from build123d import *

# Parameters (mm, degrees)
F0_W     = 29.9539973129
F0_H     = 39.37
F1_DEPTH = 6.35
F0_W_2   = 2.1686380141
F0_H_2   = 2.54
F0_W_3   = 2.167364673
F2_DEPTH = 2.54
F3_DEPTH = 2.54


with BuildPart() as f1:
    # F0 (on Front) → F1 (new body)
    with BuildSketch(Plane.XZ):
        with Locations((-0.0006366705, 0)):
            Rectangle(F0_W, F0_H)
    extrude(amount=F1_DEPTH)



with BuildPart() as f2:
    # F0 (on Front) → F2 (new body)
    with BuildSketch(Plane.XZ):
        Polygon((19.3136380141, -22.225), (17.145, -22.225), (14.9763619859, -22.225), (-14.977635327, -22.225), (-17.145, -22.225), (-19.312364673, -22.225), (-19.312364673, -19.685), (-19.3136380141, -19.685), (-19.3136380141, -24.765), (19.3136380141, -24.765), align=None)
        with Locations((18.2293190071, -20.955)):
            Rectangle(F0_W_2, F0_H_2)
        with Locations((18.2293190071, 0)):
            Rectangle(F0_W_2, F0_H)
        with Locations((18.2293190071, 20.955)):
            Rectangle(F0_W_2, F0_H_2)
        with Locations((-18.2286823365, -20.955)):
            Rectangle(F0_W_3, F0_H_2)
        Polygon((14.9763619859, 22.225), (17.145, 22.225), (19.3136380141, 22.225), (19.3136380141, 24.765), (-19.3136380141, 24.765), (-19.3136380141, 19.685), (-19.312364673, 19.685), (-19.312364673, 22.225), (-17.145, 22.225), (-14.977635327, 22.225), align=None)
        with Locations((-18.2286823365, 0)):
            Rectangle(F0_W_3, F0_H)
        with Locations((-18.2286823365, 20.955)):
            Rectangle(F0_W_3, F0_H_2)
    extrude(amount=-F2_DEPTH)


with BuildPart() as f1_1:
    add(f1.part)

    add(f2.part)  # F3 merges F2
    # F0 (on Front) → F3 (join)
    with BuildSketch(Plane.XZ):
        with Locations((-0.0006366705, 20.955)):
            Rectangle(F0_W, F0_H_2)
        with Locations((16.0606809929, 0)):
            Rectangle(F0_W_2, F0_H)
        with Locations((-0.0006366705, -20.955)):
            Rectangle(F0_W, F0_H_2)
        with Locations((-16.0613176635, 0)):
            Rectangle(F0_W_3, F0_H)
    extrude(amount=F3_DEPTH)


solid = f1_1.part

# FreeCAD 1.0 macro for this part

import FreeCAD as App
import Part
import Sketcher
from FreeCAD import Vector
Q = App.Units.Quantity

doc = App.newDocument("Part")
body = doc.addObject("PartDesign::Body", "Body")

# Sketch on XZ plane
sketch1 = body.newObject("Sketcher::SketchObject", "Sketch")
sketch1.AttachmentSupport = (doc.getObject("XZ_Plane"), [""])
sketch1.MapMode = "FlatFace"
sketch1.addGeometry(Part.LineSegment(Vector(-15, 20, 0), Vector(-15, -20, 0)), False)
sketch1.addGeometry(Part.LineSegment(Vector(-15, -20, 0), Vector(15, -20, 0)), False)
sketch1.addGeometry(Part.LineSegment(Vector(15, -20, 0), Vector(15, 20, 0)), False)
sketch1.addGeometry(Part.LineSegment(Vector(15, 20, 0), Vector(-15, 20, 0)), False)
sketch1.addConstraint(Sketcher.Constraint("Coincident", 0, 2, 1, 1))
sketch1.addConstraint(Sketcher.Constraint("Coincident", 1, 2, 2, 1))
sketch1.addConstraint(Sketcher.Constraint("Coincident", 2, 2, 3, 1))
sketch1.addConstraint(Sketcher.Constraint("Coincident", 3, 2, 0, 1))
sketch1.addConstraint(Sketcher.Constraint("Vertical", 0))
sketch1.addConstraint(Sketcher.Constraint("Horizontal", 1))
sketch1.addConstraint(Sketcher.Constraint("Vertical", 2))
sketch1.addConstraint(Sketcher.Constraint("Horizontal", 3))
sketch1.addConstraint(Sketcher.Constraint("DistanceY", 0, 2, 0, 1, Q("1.55 in")))
sketch1.addConstraint(Sketcher.Constraint("DistanceY", 0, 2, -1, 1, Q("0.775 in")))
sketch1.addConstraint(Sketcher.Constraint("DistanceX", 1, 1, 1, 2, 29.953997))
sketch1.addConstraint(Sketcher.Constraint("DistanceX", -1, 1, 1, 2, 14.976362))
pad1 = body.newObject("PartDesign::Pad", "Pad")
pad1.Profile = sketch1
pad1.Length = Q("0.25 in")
body2 = doc.addObject("PartDesign::Body", "Body001")

# Sketch on XZ plane
sketch2 = body2.newObject("Sketcher::SketchObject", "Sketch001")
sketch2.AttachmentSupport = (doc.getObject("XZ_Plane001"), [""])
sketch2.MapMode = "FlatFace"
sketch2.addGeometry(Part.LineSegment(Vector(-19.3124, 19.685, 0), Vector(-19.3124, -19.685, 0)), False)
sketch2.addGeometry(Part.LineSegment(Vector(-19.3124, -19.685, 0), Vector(-19.3136, -19.685, 0)), False)
sketch2.addGeometry(Part.LineSegment(Vector(-19.3136, -19.685, 0), Vector(-19.3136, -24.765, 0)), False)
sketch2.addGeometry(Part.LineSegment(Vector(-19.3136, -24.765, 0), Vector(19.3136, -24.765, 0)), False)
sketch2.addGeometry(Part.LineSegment(Vector(19.3136, -24.765, 0), Vector(19.3136, -22.225, 0)), False)
sketch2.addGeometry(Part.LineSegment(Vector(19.3136, -22.225, 0), Vector(19.3136, 22.225, 0)), False)
sketch2.addGeometry(Part.LineSegment(Vector(19.3136, 22.225, 0), Vector(19.3136, 24.765, 0)), False)
sketch2.addGeometry(Part.LineSegment(Vector(19.3136, 24.765, 0), Vector(-19.3136, 24.765, 0)), False)
sketch2.addGeometry(Part.LineSegment(Vector(-19.3136, 24.765, 0), Vector(-19.3136, 19.685, 0)), False)
sketch2.addGeometry(Part.LineSegment(Vector(-19.3136, 19.685, 0), Vector(-19.3124, 19.685, 0)), False)
sketch2.addGeometry(Part.LineSegment(Vector(-17.145, -22.225, 0), Vector(-17.145, 22.225, 0)), False)
sketch2.addGeometry(Part.LineSegment(Vector(-17.145, 22.225, 0), Vector(17.145, 22.225, 0)), False)
sketch2.addGeometry(Part.LineSegment(Vector(17.145, 22.225, 0), Vector(17.145, -22.225, 0)), False)
sketch2.addGeometry(Part.LineSegment(Vector(17.145, -22.225, 0), Vector(-17.145, -22.225, 0)), False)
sketch2.addConstraint(Sketcher.Constraint("Coincident", 0, 2, 1, 1))
sketch2.addConstraint(Sketcher.Constraint("Coincident", 1, 2, 2, 1))
sketch2.addConstraint(Sketcher.Constraint("Coincident", 2, 2, 3, 1))
sketch2.addConstraint(Sketcher.Constraint("Coincident", 3, 2, 4, 1))
sketch2.addConstraint(Sketcher.Constraint("Coincident", 4, 2, 5, 1))
sketch2.addConstraint(Sketcher.Constraint("Coincident", 5, 2, 6, 1))
sketch2.addConstraint(Sketcher.Constraint("Coincident", 6, 2, 7, 1))
sketch2.addConstraint(Sketcher.Constraint("Coincident", 7, 2, 8, 1))
sketch2.addConstraint(Sketcher.Constraint("Coincident", 8, 2, 9, 1))
sketch2.addConstraint(Sketcher.Constraint("Coincident", 9, 2, 0, 1))
sketch2.addConstraint(Sketcher.Constraint("Coincident", 10, 2, 11, 1))
sketch2.addConstraint(Sketcher.Constraint("Coincident", 11, 2, 12, 1))
sketch2.addConstraint(Sketcher.Constraint("Coincident", 12, 2, 13, 1))
sketch2.addConstraint(Sketcher.Constraint("Coincident", 13, 2, 10, 1))
sketch2.addConstraint(Sketcher.Constraint("Vertical", 0))
sketch2.addConstraint(Sketcher.Constraint("Horizontal", 1))
sketch2.addConstraint(Sketcher.Constraint("Vertical", 2))
sketch2.addConstraint(Sketcher.Constraint("Horizontal", 3))
sketch2.addConstraint(Sketcher.Constraint("Vertical", 4))
sketch2.addConstraint(Sketcher.Constraint("Vertical", 5))
sketch2.addConstraint(Sketcher.Constraint("Vertical", 6))
sketch2.addConstraint(Sketcher.Constraint("Horizontal", 7))
sketch2.addConstraint(Sketcher.Constraint("Vertical", 8))
sketch2.addConstraint(Sketcher.Constraint("Horizontal", 9))
sketch2.addConstraint(Sketcher.Constraint("Vertical", 10))
sketch2.addConstraint(Sketcher.Constraint("Horizontal", 11))
sketch2.addConstraint(Sketcher.Constraint("Vertical", 12))
sketch2.addConstraint(Sketcher.Constraint("Horizontal", 13))
sketch2.addConstraint(Sketcher.Constraint("Symmetric", 2, 2, 6, 2, -1, 1))
sketch2.addConstraint(Sketcher.Constraint("Symmetric", 10, 2, 12, 2, -1, 1))
sketch2.addConstraint(Sketcher.Constraint("Symmetric", 1, 2, 8, 2, -1))
sketch2.addConstraint(Sketcher.Constraint("Horizontal", 5, 2, 10, 2))
sketch2.addConstraint(Sketcher.Constraint("Horizontal", 4, 2, 12, 2))
sketch2.addConstraint(Sketcher.Constraint("DistanceY", 2, 2, 2, 1, Q("0.2 in")))
sketch2.addConstraint(Sketcher.Constraint("DistanceY", 4, 1, 4, 2, Q("0.1 in")))
sketch2.addConstraint(Sketcher.Constraint("DistanceX", 11, 1, 11, 2, Q("1.35 in")))
sketch2.addConstraint(Sketcher.Constraint("DistanceY", 0, 2, 0, 1, Q("1.55 in")))
sketch2.addConstraint(Sketcher.Constraint("DistanceX", 1, 2, 1, 1, 0.001273))
sketch2.addConstraint(Sketcher.Constraint("DistanceX", 3, 1, 3, 2, 38.627276))
pad2 = body2.newObject("PartDesign::Pad", "Pad001")
pad2.Profile = sketch2
pad2.Length = Q("0.1 in")
pad2.Reversed = True
body.AllowCompound = True
doc.recompute()

boolean = body.newObject("PartDesign::Boolean", "Boolean")
boolean.Type = "Fuse"
boolean.addObjects([body2])

# Sketch on XZ plane
sketch3 = body.newObject("Sketcher::SketchObject", "Sketch002")
sketch3.AttachmentSupport = (doc.getObject("XZ_Plane"), [""])
sketch3.MapMode = "FlatFace"
sketch3.addGeometry(Part.LineSegment(Vector(-15, 22.2, 0), Vector(-15, 19.7, 0)), False)
sketch3.addGeometry(Part.LineSegment(Vector(-15, 19.7, 0), Vector(15, 19.7, 0)), False)
sketch3.addGeometry(Part.LineSegment(Vector(15, 19.7, 0), Vector(15, 22.2, 0)), False)
sketch3.addGeometry(Part.LineSegment(Vector(15, 22.2, 0), Vector(-15, 22.2, 0)), False)
sketch3.addGeometry(Part.LineSegment(Vector(15, 19.7, 0), Vector(15, -19.7, 0)), False)
sketch3.addGeometry(Part.LineSegment(Vector(15, -19.7, 0), Vector(17.1, -19.7, 0)), False)
sketch3.addGeometry(Part.LineSegment(Vector(17.1, -19.7, 0), Vector(17.1, 19.7, 0)), False)
sketch3.addGeometry(Part.LineSegment(Vector(17.1, 19.7, 0), Vector(15, 19.7, 0)), False)
sketch3.addGeometry(Part.LineSegment(Vector(-15, -19.7, 0), Vector(-15, -22.2, 0)), False)
sketch3.addGeometry(Part.LineSegment(Vector(-15, -22.2, 0), Vector(15, -22.2, 0)), False)
sketch3.addGeometry(Part.LineSegment(Vector(15, -22.2, 0), Vector(15, -19.7, 0)), False)
sketch3.addGeometry(Part.LineSegment(Vector(15, -19.7, 0), Vector(-15, -19.7, 0)), False)
sketch3.addGeometry(Part.LineSegment(Vector(-17.1, 19.7, 0), Vector(-17.1, -19.7, 0)), False)
sketch3.addGeometry(Part.LineSegment(Vector(-17.1, -19.7, 0), Vector(-15, -19.7, 0)), False)
sketch3.addGeometry(Part.LineSegment(Vector(-15, -19.7, 0), Vector(-15, 19.7, 0)), False)
sketch3.addGeometry(Part.LineSegment(Vector(-15, 19.7, 0), Vector(-17.1, 19.7, 0)), False)
sketch3.addConstraint(Sketcher.Constraint("Coincident", 0, 2, 1, 1))
sketch3.addConstraint(Sketcher.Constraint("Coincident", 1, 2, 2, 1))
sketch3.addConstraint(Sketcher.Constraint("Coincident", 2, 2, 3, 1))
sketch3.addConstraint(Sketcher.Constraint("Coincident", 3, 2, 0, 1))
sketch3.addConstraint(Sketcher.Constraint("Coincident", 4, 2, 5, 1))
sketch3.addConstraint(Sketcher.Constraint("Coincident", 5, 2, 6, 1))
sketch3.addConstraint(Sketcher.Constraint("Coincident", 6, 2, 7, 1))
sketch3.addConstraint(Sketcher.Constraint("Coincident", 7, 2, 4, 1))
sketch3.addConstraint(Sketcher.Constraint("Coincident", 8, 2, 9, 1))
sketch3.addConstraint(Sketcher.Constraint("Coincident", 9, 2, 10, 1))
sketch3.addConstraint(Sketcher.Constraint("Coincident", 10, 2, 11, 1))
sketch3.addConstraint(Sketcher.Constraint("Coincident", 11, 2, 8, 1))
sketch3.addConstraint(Sketcher.Constraint("Coincident", 12, 2, 13, 1))
sketch3.addConstraint(Sketcher.Constraint("Coincident", 13, 2, 14, 1))
sketch3.addConstraint(Sketcher.Constraint("Coincident", 14, 2, 15, 1))
sketch3.addConstraint(Sketcher.Constraint("Coincident", 15, 2, 12, 1))
sketch3.addConstraint(Sketcher.Constraint("Vertical", 0))
sketch3.addConstraint(Sketcher.Constraint("Horizontal", 1))
sketch3.addConstraint(Sketcher.Constraint("Vertical", 2))
sketch3.addConstraint(Sketcher.Constraint("Horizontal", 3))
sketch3.addConstraint(Sketcher.Constraint("Vertical", 4))
sketch3.addConstraint(Sketcher.Constraint("Horizontal", 5))
sketch3.addConstraint(Sketcher.Constraint("Vertical", 6))
sketch3.addConstraint(Sketcher.Constraint("Horizontal", 7))
sketch3.addConstraint(Sketcher.Constraint("Vertical", 8))
sketch3.addConstraint(Sketcher.Constraint("Horizontal", 9))
sketch3.addConstraint(Sketcher.Constraint("Vertical", 10))
sketch3.addConstraint(Sketcher.Constraint("Horizontal", 11))
sketch3.addConstraint(Sketcher.Constraint("Vertical", 12))
sketch3.addConstraint(Sketcher.Constraint("Horizontal", 13))
sketch3.addConstraint(Sketcher.Constraint("Vertical", 14))
sketch3.addConstraint(Sketcher.Constraint("Horizontal", 15))
sketch3.addConstraint(Sketcher.Constraint("Coincident", 7, 2, 1, 2))
sketch3.addConstraint(Sketcher.Constraint("Coincident", 10, 2, 4, 2))
sketch3.addConstraint(Sketcher.Constraint("Coincident", 13, 2, 11, 2))
sketch3.addConstraint(Sketcher.Constraint("Coincident", 14, 2, 0, 2))
sketch3.addConstraint(Sketcher.Constraint("Symmetric", 6, 2, 12, 2, -1, 1))
sketch3.addConstraint(Sketcher.Constraint("Equal", 2, 8))
sketch3.addConstraint(Sketcher.Constraint("DistanceY", 0, 2, 0, 1, Q("0.1 in")))
sketch3.addConstraint(Sketcher.Constraint("DistanceY", 4, 2, 4, 1, Q("1.55 in")))
sketch3.addConstraint(Sketcher.Constraint("DistanceX", -1, 1, 5, 2, Q("0.675 in")))
sketch3.addConstraint(Sketcher.Constraint("DistanceX", 5, 1, 5, 2, 2.168638))
sketch3.addConstraint(Sketcher.Constraint("DistanceX", 1, 1, 1, 2, 29.953997))
pad3 = body.newObject("PartDesign::Pad", "Pad002")
pad3.Profile = sketch3
pad3.Length = Q("0.1 in")

doc.recompute()
